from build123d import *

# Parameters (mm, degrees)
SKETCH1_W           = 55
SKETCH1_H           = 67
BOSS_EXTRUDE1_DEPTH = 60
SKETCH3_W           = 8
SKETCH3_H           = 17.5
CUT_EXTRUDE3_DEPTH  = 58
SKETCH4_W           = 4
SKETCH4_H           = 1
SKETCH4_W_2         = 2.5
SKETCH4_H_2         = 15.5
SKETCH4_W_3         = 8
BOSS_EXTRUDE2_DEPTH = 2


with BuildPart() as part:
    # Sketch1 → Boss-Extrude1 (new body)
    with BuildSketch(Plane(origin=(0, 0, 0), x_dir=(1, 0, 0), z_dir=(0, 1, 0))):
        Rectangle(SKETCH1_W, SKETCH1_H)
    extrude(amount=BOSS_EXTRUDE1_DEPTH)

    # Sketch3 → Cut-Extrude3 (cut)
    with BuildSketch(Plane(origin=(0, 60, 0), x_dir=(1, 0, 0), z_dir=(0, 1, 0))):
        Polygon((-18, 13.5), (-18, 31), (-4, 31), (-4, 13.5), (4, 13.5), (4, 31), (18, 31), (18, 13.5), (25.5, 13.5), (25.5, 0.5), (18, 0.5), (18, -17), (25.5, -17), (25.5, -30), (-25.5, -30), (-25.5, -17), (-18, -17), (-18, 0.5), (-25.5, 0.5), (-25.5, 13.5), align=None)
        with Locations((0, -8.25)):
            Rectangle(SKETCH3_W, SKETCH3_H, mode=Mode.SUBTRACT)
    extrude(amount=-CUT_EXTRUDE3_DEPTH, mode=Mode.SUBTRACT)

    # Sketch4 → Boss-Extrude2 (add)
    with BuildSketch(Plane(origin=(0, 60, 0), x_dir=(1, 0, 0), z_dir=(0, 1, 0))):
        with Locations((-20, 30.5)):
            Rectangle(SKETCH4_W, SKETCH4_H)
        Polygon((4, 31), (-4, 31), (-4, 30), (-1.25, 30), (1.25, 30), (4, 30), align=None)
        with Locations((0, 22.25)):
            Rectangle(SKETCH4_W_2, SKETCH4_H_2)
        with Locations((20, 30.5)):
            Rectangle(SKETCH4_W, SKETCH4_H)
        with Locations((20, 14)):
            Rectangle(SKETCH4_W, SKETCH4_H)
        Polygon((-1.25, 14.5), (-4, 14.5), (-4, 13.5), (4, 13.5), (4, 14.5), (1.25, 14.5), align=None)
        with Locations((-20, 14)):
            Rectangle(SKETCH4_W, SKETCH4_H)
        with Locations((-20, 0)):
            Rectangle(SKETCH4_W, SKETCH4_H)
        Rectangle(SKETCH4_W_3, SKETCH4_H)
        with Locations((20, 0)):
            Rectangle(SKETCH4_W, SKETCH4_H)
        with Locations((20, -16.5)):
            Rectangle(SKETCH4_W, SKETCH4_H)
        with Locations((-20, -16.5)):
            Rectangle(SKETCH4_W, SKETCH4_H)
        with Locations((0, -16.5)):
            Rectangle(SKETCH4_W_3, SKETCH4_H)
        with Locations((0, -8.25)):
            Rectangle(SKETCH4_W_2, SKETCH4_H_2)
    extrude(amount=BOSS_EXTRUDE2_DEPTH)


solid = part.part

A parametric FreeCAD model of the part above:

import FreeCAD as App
import Part
import Sketcher

V = App.Vector

doc = App.newDocument("Part")
body = doc.addObject("PartDesign::Body", "Body")

# Sketch on XZ plane
sketch1 = body.newObject("Sketcher::SketchObject", "Sketch")
sketch1.AttachmentSupport = (doc.getObject("XZ_Plane"), [""])
sketch1.MapMode = "FlatFace"
sketch1.addGeometry(Part.LineSegment(V(-28, -34, 0), V(-28, 34, 0)), False)
sketch1.addGeometry(Part.LineSegment(V(-28, 34, 0), V(28, 34, 0)), False)
sketch1.addGeometry(Part.LineSegment(V(28, 34, 0), V(28, -34, 0)), False)
sketch1.addGeometry(Part.LineSegment(V(28, -34, 0), V(-28, -34, 0)), False)
sketch1.addConstraint(Sketcher.Constraint("Coincident", 0, 2, 1, 1))
sketch1.addConstraint(Sketcher.Constraint("Coincident", 1, 2, 2, 1))
sketch1.addConstraint(Sketcher.Constraint("Coincident", 2, 2, 3, 1))
sketch1.addConstraint(Sketcher.Constraint("Coincident", 3, 2, 0, 1))
sketch1.addConstraint(Sketcher.Constraint("Vertical", 0))
sketch1.addConstraint(Sketcher.Constraint("Horizontal", 1))
sketch1.addConstraint(Sketcher.Constraint("Vertical", 2))
sketch1.addConstraint(Sketcher.Constraint("Horizontal", 3))
sketch1.addConstraint(Sketcher.Constraint("Symmetric", 0, 2, 2, 2, -1, 1))
sketch1.addConstraint(Sketcher.Constraint("DistanceX", 1, 1, 1, 2, 55.0))
sketch1.addConstraint(Sketcher.Constraint("DistanceY", 0, 1, 0, 2, 67.0))
pad1 = body.newObject("PartDesign::Pad", "Pad")
pad1.Profile = sketch1
pad1.Length = 60
pad1.Reversed = True

# Sketch on XZ plane
sketch2 = body.newObject("Sketcher::SketchObject", "Sketch001")
sketch2.AttachmentSupport = (doc.getObject("XZ_Plane"), [""])
sketch2.MapMode = "FlatFace"
sketch2.AttachmentOffset = App.Placement(V(0, 0, -60), App.Rotation())
sketch2.addGeometry(Part.LineSegment(V(-18, -31, 0), V(-18, -14, 0)), False)
sketch2.addGeometry(Part.LineSegment(V(-18, -14, 0), V(-26, -14, 0)), False)
sketch2.addGeometry(Part.LineSegment(V(-26, -14, 0), V(-26, 0, 0)), False)
sketch2.addGeometry(Part.LineSegment(V(-26, 0, 0), V(-18, 0, 0)), False)
sketch2.addGeometry(Part.LineSegment(V(-18, 0, 0), V(-18, 17, 0)), False)
sketch2.addGeometry(Part.LineSegment(V(-18, 17, 0), V(-26, 17, 0)), False)
sketch2.addGeometry(Part.LineSegment(V(-26, 17, 0), V(-26, 30, 0)), False)
sketch2.addGeometry(Part.LineSegment(V(-26, 30, 0), V(26, 30, 0)), False)
sketch2.addGeometry(Part.LineSegment(V(26, 30, 0), V(26, 17, 0)), False)
sketch2.addGeometry(Part.LineSegment(V(26, 17, 0), V(18, 17, 0)), False)
sketch2.addGeometry(Part.LineSegment(V(18, 17, 0), V(18, 0, 0)), False)
sketch2.addGeometry(Part.LineSegment(V(18, 0, 0), V(26, 0, 0)), False)
sketch2.addGeometry(Part.LineSegment(V(26, 0, 0), V(26, -14, 0)), False)
sketch2.addGeometry(Part.LineSegment(V(26, -14, 0), V(18, -14, 0)), False)
sketch2.addGeometry(Part.LineSegment(V(18, -14, 0), V(18, -31, 0)), False)
sketch2.addGeometry(Part.LineSegment(V(18, -31, 0), V(4, -31, 0)), False)
sketch2.addGeometry(Part.LineSegment(V(4, -31, 0), V(4, -14, 0)), False)
sketch2.addGeometry(Part.LineSegment(V(4, -14, 0), V(-4, -14, 0)), False)
sketch2.addGeometry(Part.LineSegment(V(-4, -14, 0), V(-4, -31, 0)), False)
sketch2.addGeometry(Part.LineSegment(V(-4, -31, 0), V(-18, -31, 0)), False)
sketch2.addGeometry(Part.LineSegment(V(-4, 17, 0), V(-4, 0, 0)), False)
sketch2.addGeometry(Part.LineSegment(V(-4, 0, 0), V(4, 0, 0)), False)
sketch2.addGeometry(Part.LineSegment(V(4, 0, 0), V(4, 17, 0)), False)
sketch2.addGeometry(Part.LineSegment(V(4, 17, 0), V(-4, 17, 0)), False)
sketch2.addConstraint(Sketcher.Constraint("Coincident", 0, 2, 1, 1))
sketch2.addConstraint(Sketcher.Constraint("Coincident", 1, 2, 2, 1))
sketch2.addConstraint(Sketcher.Constraint("Coincident", 2, 2, 3, 1))
sketch2.addConstraint(Sketcher.Constraint("Coincident", 3, 2, 4, 1))
sketch2.addConstraint(Sketcher.Constraint("Coincident", 4, 2, 5, 1))
sketch2.addConstraint(Sketcher.Constraint("Coincident", 5, 2, 6, 1))
sketch2.addConstraint(Sketcher.Constraint("Coincident", 6, 2, 7, 1))
sketch2.addConstraint(Sketcher.Constraint("Coincident", 7, 2, 8, 1))
sketch2.addConstraint(Sketcher.Constraint("Coincident", 8, 2, 9, 1))
sketch2.addConstraint(Sketcher.Constraint("Coincident", 9, 2, 10, 1))
sketch2.addConstraint(Sketcher.Constraint("Coincident", 10, 2, 11, 1))
sketch2.addConstraint(Sketcher.Constraint("Coincident", 11, 2, 12, 1))
sketch2.addConstraint(Sketcher.Constraint("Coincident", 12, 2, 13, 1))
sketch2.addConstraint(Sketcher.Constraint("Coincident", 13, 2, 14, 1))
sketch2.addConstraint(Sketcher.Constraint("Coincident", 14, 2, 15, 1))
sketch2.addConstraint(Sketcher.Constraint("Coincident", 15, 2, 16, 1))
sketch2.addConstraint(Sketcher.Constraint("Coincident", 16, 2, 17, 1))
sketch2.addConstraint(Sketcher.Constraint("Coincident", 17, 2, 18, 1))
sketch2.addConstraint(Sketcher.Constraint("Coincident", 18, 2, 19, 1))
sketch2.addConstraint(Sketcher.Constraint("Coincident", 19, 2, 0, 1))
sketch2.addConstraint(Sketcher.Constraint("Coincident", 20, 2, 21, 1))
sketch2.addConstraint(Sketcher.Constraint("Coincident", 21, 2, 22, 1))
sketch2.addConstraint(Sketcher.Constraint("Coincident", 22, 2, 23, 1))
sketch2.addConstraint(Sketcher.Constraint("Coincident", 23, 2, 20, 1))
sketch2.addConstraint(Sketcher.Constraint("Vertical", 0))
sketch2.addConstraint(Sketcher.Constraint("Horizontal", 1))
sketch2.addConstraint(Sketcher.Constraint("Vertical", 2))
sketch2.addConstraint(Sketcher.Constraint("Horizontal", 3))
sketch2.addConstraint(Sketcher.Constraint("Vertical", 4))
sketch2.addConstraint(Sketcher.Constraint("Horizontal", 5))
sketch2.addConstraint(Sketcher.Constraint("Vertical", 6))
sketch2.addConstraint(Sketcher.Constraint("Horizontal", 7))
sketch2.addConstraint(Sketcher.Constraint("Vertical", 8))
sketch2.addConstraint(Sketcher.Constraint("Horizontal", 9))
sketch2.addConstraint(Sketcher.Constraint("Vertical", 10))
sketch2.addConstraint(Sketcher.Constraint("Horizontal", 11))
sketch2.addConstraint(Sketcher.Constraint("Vertical", 12))
sketch2.addConstraint(Sketcher.Constraint("Horizontal", 13))
sketch2.addConstraint(Sketcher.Constraint("Vertical", 14))
sketch2.addConstraint(Sketcher.Constraint("Horizontal", 15))
sketch2.addConstraint(Sketcher.Constraint("Vertical", 16))
sketch2.addConstraint(Sketcher.Constraint("Horizontal", 17))
sketch2.addConstraint(Sketcher.Constraint("Vertical", 18))
sketch2.addConstraint(Sketcher.Constraint("Horizontal", 19))
sketch2.addConstraint(Sketcher.Constraint("Vertical", 20))
sketch2.addConstraint(Sketcher.Constraint("Horizontal", 21))
sketch2.addConstraint(Sketcher.Constraint("Vertical", 22))
sketch2.addConstraint(Sketcher.Constraint("Horizontal", 23))
sketch2.addConstraint(Sketcher.Constraint("Symmetric", 5, 2, 8, 2, -2))
sketch2.addConstraint(Sketcher.Constraint("Symmetric", 3, 2, 10, 2, -2))
sketch2.addConstraint(Sketcher.Constraint("Symmetric", 1, 2, 12, 2, -2))
sketch2.addConstraint(Sketcher.Constraint("Symmetric", 15, 2, 18, 2, -2))
sketch2.addConstraint(Sketcher.Constraint("Horizontal", 13, 2, 16, 2))
sketch2.addConstraint(Sketcher.Constraint("Horizontal", 11, 2, 20, 2))
sketch2.addConstraint(Sketcher.Constraint("Horizontal", 9, 2, 22, 2))
sketch2.addConstraint(Sketcher.Constraint("Vertical", 0, 2, 3, 2))
sketch2.addConstraint(Sketcher.Constraint("Vertical", 2, 2, 5, 2))
sketch2.addConstraint(Sketcher.Constraint("Vertical", 10, 2, 13, 2))
sketch2.addConstraint(Sketcher.Constraint("Vertical", 18, 2, 20, 2))
sketch2.addConstraint(Sketcher.Constraint("Vertical", 16, 2, 21, 2))
sketch2.addConstraint(Sketcher.Constraint("Equal", 0, 4))
sketch2.addConstraint(Sketcher.Constraint("Equal", 2, 6))
sketch2.addConstraint(Sketcher.Constraint("DistanceX", 7, 1, 7, 2, 51.0))
sketch2.addConstraint(Sketcher.Constraint("DistanceX", 15, 2, 15, 1, 14.0))
sketch2.addConstraint(Sketcher.Constraint("DistanceX", 17, 2, 17, 1, 8.0))
sketch2.addConstraint(Sketcher.Constraint("DistanceY", 2, 1, 2, 2, 13.0))
sketch2.addConstraint(Sketcher.Constraint("DistanceY", 0, 1, 0, 2, 17.5))
sketch2.addConstraint(Sketcher.Constraint("DistanceY", -1, 1, 4, 2, 17.0))
pocket1 = body.newObject("PartDesign::Pocket", "Pocket")
pocket1.Profile = sketch2
pocket1.Length = 58
pocket1.Reversed = True

# Sketch on XZ plane
sketch3 = body.newObject("Sketcher::SketchObject", "Sketch002")
sketch3.AttachmentSupport = (doc.getObject("XZ_Plane"), [""])
sketch3.MapMode = "FlatFace"
sketch3.AttachmentOffset = App.Placement(V(0, 0, -60), App.Rotation())
sketch3.addGeometry(Part.LineSegment(V(-22, -31, 0), V(-22, -30, 0)), False)
sketch3.addGeometry(Part.LineSegment(V(-22, -30, 0), V(-18, -30, 0)), False)
sketch3.addGeometry(Part.LineSegment(V(-18, -30, 0), V(-18, -31, 0)), False)
sketch3.addGeometry(Part.LineSegment(V(-18, -31, 0), V(-22, -31, 0)), False)
sketch3.addGeometry(Part.LineSegment(V(4, -31, 0), V(-4, -31, 0)), False)
sketch3.addGeometry(Part.LineSegment(V(-4, -31, 0), V(-4, -30, 0)), False)
sketch3.addGeometry(Part.LineSegment(V(-4, -30, 0), V(-1.2, -30, 0)), False)
sketch3.addGeometry(Part.LineSegment(V(-1.2, -30, 0), V(-1.2, -14.5, 0)), False)
sketch3.addGeometry(Part.LineSegment(V(-1.2, -14.5, 0), V(-4, -14.5, 0)), False)
sketch3.addGeometry(Part.LineSegment(V(-4, -14.5, 0), V(-4, -13.5, 0)), False)
sketch3.addGeometry(Part.LineSegment(V(-4, -13.5, 0), V(4, -13.5, 0)), False)
sketch3.addGeometry(Part.LineSegment(V(4, -13.5, 0), V(4, -14.5, 0)), False)
sketch3.addGeometry(Part.LineSegment(V(4, -14.5, 0), V(1.2, -14.5, 0)), False)
sketch3.addGeometry(Part.LineSegment(V(1.2, -14.5, 0), V(1.2, -30, 0)), False)
sketch3.addGeometry(Part.LineSegment(V(1.2, -30, 0), V(4, -30, 0)), False)
sketch3.addGeometry(Part.LineSegment(V(4, -30, 0), V(4, -31, 0)), False)
sketch3.addGeometry(Part.LineSegment(V(18, -31, 0), V(18, -30, 0)), False)
sketch3.addGeometry(Part.LineSegment(V(18, -30, 0), V(22, -30, 0)), False)
sketch3.addGeometry(Part.LineSegment(V(22, -30, 0), V(22, -31, 0)), False)
sketch3.addGeometry(Part.LineSegment(V(22, -31, 0), V(18, -31, 0)), False)
sketch3.addGeometry(Part.LineSegment(V(18, -14.5, 0), V(18, -13.5, 0)), False)
sketch3.addGeometry(Part.LineSegment(V(18, -13.5, 0), V(22, -13.5, 0)), False)
sketch3.addGeometry(Part.LineSegment(V(22, -13.5, 0), V(22, -14.5, 0)), False)
sketch3.addGeometry(Part.LineSegment(V(22, -14.5, 0), V(18, -14.5, 0)), False)
sketch3.addGeometry(Part.LineSegment(V(-22, -14.5, 0), V(-22, -13.5, 0)), False)
sketch3.addGeometry(Part.LineSegment(V(-22, -13.5, 0), V(-18, -13.5, 0)), False)
sketch3.addGeometry(Part.LineSegment(V(-18, -13.5, 0), V(-18, -14.5, 0)), False)
sketch3.addGeometry(Part.LineSegment(V(-18, -14.5, 0), V(-22, -14.5, 0)), False)
sketch3.addGeometry(Part.LineSegment(V(-22, -0.5, 0), V(-22, 0.5, 0)), False)
sketch3.addGeometry(Part.LineSegment(V(-22, 0.5, 0), V(-18, 0.5, 0)), False)
sketch3.addGeometry(Part.LineSegment(V(-18, 0.5, 0), V(-18, -0.5, 0)), False)
sketch3.addGeometry(Part.LineSegment(V(-18, -0.5, 0), V(-22, -0.5, 0)), False)
sketch3.addGeometry(Part.LineSegment(V(-4, -0.5, 0), V(-4, 0.5, 0)), False)
sketch3.addGeometry(Part.LineSegment(V(-4, 0.5, 0), V(-1.2, 0.5, 0)), False)
sketch3.addGeometry(Part.LineSegment(V(-1.2, 0.5, 0), V(-1.2, 16, 0)), False)
sketch3.addGeometry(Part.LineSegment(V(-1.2, 16, 0), V(-4, 16, 0)), False)
sketch3.addGeometry(Part.LineSegment(V(-4, 16, 0), V(-4, 17, 0)), False)
sketch3.addGeometry(Part.LineSegment(V(-4, 17, 0), V(4, 17, 0)), False)
sketch3.addGeometry(Part.LineSegment(V(4, 17, 0), V(4, 16, 0)), False)
sketch3.addGeometry(Part.LineSegment(V(4, 16, 0), V(1.2, 16, 0)), False)
sketch3.addGeometry(Part.LineSegment(V(1.2, 16, 0), V(1.2, 0.5, 0)), False)
sketch3.addGeometry(Part.LineSegment(V(1.2, 0.5, 0), V(4, 0.5, 0)), False)
sketch3.addGeometry(Part.LineSegment(V(4, 0.5, 0), V(4, -0.5, 0)), False)
sketch3.addGeometry(Part.LineSegment(V(4, -0.5, 0), V(-4, -0.5, 0)), False)
sketch3.addGeometry(Part.LineSegment(V(18, -0.5, 0), V(18, 0.5, 0)), False)
sketch3.addGeometry(Part.LineSegment(V(18, 0.5, 0), V(22, 0.5, 0)), False)
sketch3.addGeometry(Part.LineSegment(V(22, 0.5, 0), V(22, -0.5, 0)), False)
sketch3.addGeometry(Part.LineSegment(V(22, -0.5, 0), V(18, -0.5, 0)), False)
sketch3.addGeometry(Part.LineSegment(V(18, 16, 0), V(18, 17, 0)), False)
sketch3.addGeometry(Part.LineSegment(V(18, 17, 0), V(22, 17, 0)), False)
sketch3.addGeometry(Part.LineSegment(V(22, 17, 0), V(22, 16, 0)), False)
sketch3.addGeometry(Part.LineSegment(V(22, 16, 0), V(18, 16, 0)), False)
sketch3.addGeometry(Part.LineSegment(V(-22, 16, 0), V(-22, 17, 0)), False)
sketch3.addGeometry(Part.LineSegment(V(-22, 17, 0), V(-18, 17, 0)), False)
sketch3.addGeometry(Part.LineSegment(V(-18, 17, 0), V(-18, 16, 0)), False)
sketch3.addGeometry(Part.LineSegment(V(-18, 16, 0), V(-22, 16, 0)), False)
sketch3.addConstraint(Sketcher.Constraint("Coincident", 0, 2, 1, 1))
sketch3.addConstraint(Sketcher.Constraint("Coincident", 1, 2, 2, 1))
sketch3.addConstraint(Sketcher.Constraint("Coincident", 2, 2, 3, 1))
sketch3.addConstraint(Sketcher.Constraint("Coincident", 3, 2, 0, 1))
sketch3.addConstraint(Sketcher.Constraint("Coincident", 4, 2, 5, 1))
sketch3.addConstraint(Sketcher.Constraint("Coincident", 5, 2, 6, 1))
sketch3.addConstraint(Sketcher.Constraint("Coincident", 6, 2, 7, 1))
sketch3.addConstraint(Sketcher.Constraint("Coincident", 7, 2, 8, 1))
sketch3.addConstraint(Sketcher.Constraint("Coincident", 8, 2, 9, 1))
sketch3.addConstraint(Sketcher.Constraint("Coincident", 9, 2, 10, 1))
sketch3.addConstraint(Sketcher.Constraint("Coincident", 10, 2, 11, 1))
sketch3.addConstraint(Sketcher.Constraint("Coincident", 11, 2, 12, 1))
sketch3.addConstraint(Sketcher.Constraint("Coincident", 12, 2, 13, 1))
sketch3.addConstraint(Sketcher.Constraint("Coincident", 13, 2, 14, 1))
sketch3.addConstraint(Sketcher.Constraint("Coincident", 14, 2, 15, 1))
sketch3.addConstraint(Sketcher.Constraint("Coincident", 15, 2, 4, 1))
sketch3.addConstraint(Sketcher.Constraint("Coincident", 16, 2, 17, 1))
sketch3.addConstraint(Sketcher.Constraint("Coincident", 17, 2, 18, 1))
sketch3.addConstraint(Sketcher.Constraint("Coincident", 18, 2, 19, 1))
sketch3.addConstraint(Sketcher.Constraint("Coincident", 19, 2, 16, 1))
sketch3.addConstraint(Sketcher.Constraint("Coincident", 20, 2, 21, 1))
sketch3.addConstraint(Sketcher.Constraint("Coincident", 21, 2, 22, 1))
sketch3.addConstraint(Sketcher.Constraint("Coincident", 22, 2, 23, 1))
sketch3.addConstraint(Sketcher.Constraint("Coincident", 23, 2, 20, 1))
sketch3.addConstraint(Sketcher.Constraint("Coincident", 24, 2, 25, 1))
sketch3.addConstraint(Sketcher.Constraint("Coincident", 25, 2, 26, 1))
sketch3.addConstraint(Sketcher.Constraint("Coincident", 26, 2, 27, 1))
sketch3.addConstraint(Sketcher.Constraint("Coincident", 27, 2, 24, 1))
sketch3.addConstraint(Sketcher.Constraint("Coincident", 28, 2, 29, 1))
sketch3.addConstraint(Sketcher.Constraint("Coincident", 29, 2, 30, 1))
sketch3.addConstraint(Sketcher.Constraint("Coincident", 30, 2, 31, 1))
sketch3.addConstraint(Sketcher.Constraint("Coincident", 31, 2, 28, 1))
sketch3.addConstraint(Sketcher.Constraint("Coincident", 32, 2, 33, 1))
sketch3.addConstraint(Sketcher.Constraint("Coincident", 33, 2, 34, 1))
sketch3.addConstraint(Sketcher.Constraint("Coincident", 34, 2, 35, 1))
sketch3.addConstraint(Sketcher.Constraint("Coincident", 35, 2, 36, 1))
sketch3.addConstraint(Sketcher.Constraint("Coincident", 36, 2, 37, 1))
sketch3.addConstraint(Sketcher.Constraint("Coincident", 37, 2, 38, 1))
sketch3.addConstraint(Sketcher.Constraint("Coincident", 38, 2, 39, 1))
sketch3.addConstraint(Sketcher.Constraint("Coincident", 39, 2, 40, 1))
sketch3.addConstraint(Sketcher.Constraint("Coincident", 40, 2, 41, 1))
sketch3.addConstraint(Sketcher.Constraint("Coincident", 41, 2, 42, 1))
sketch3.addConstraint(Sketcher.Constraint("Coincident", 42, 2, 43, 1))
sketch3.addConstraint(Sketcher.Constraint("Coincident", 43, 2, 32, 1))
sketch3.addConstraint(Sketcher.Constraint("Coincident", 44, 2, 45, 1))
sketch3.addConstraint(Sketcher.Constraint("Coincident", 45, 2, 46, 1))
sketch3.addConstraint(Sketcher.Constraint("Coincident", 46, 2, 47, 1))
sketch3.addConstraint(Sketcher.Constraint("Coincident", 47, 2, 44, 1))
sketch3.addConstraint(Sketcher.Constraint("Coincident", 48, 2, 49, 1))
sketch3.addConstraint(Sketcher.Constraint("Coincident", 49, 2, 50, 1))
sketch3.addConstraint(Sketcher.Constraint("Coincident", 50, 2, 51, 1))
sketch3.addConstraint(Sketcher.Constraint("Coincident", 51, 2, 48, 1))
sketch3.addConstraint(Sketcher.Constraint("Coincident", 52, 2, 53, 1))
sketch3.addConstraint(Sketcher.Constraint("Coincident", 53, 2, 54, 1))
sketch3.addConstraint(Sketcher.Constraint("Coincident", 54, 2, 55, 1))
sketch3.addConstraint(Sketcher.Constraint("Coincident", 55, 2, 52, 1))
sketch3.addConstraint(Sketcher.Constraint("Vertical", 0))
sketch3.addConstraint(Sketcher.Constraint("Horizontal", 1))
sketch3.addConstraint(Sketcher.Constraint("Vertical", 2))
sketch3.addConstraint(Sketcher.Constraint("Horizontal", 3))
sketch3.addConstraint(Sketcher.Constraint("Horizontal", 4))
sketch3.addConstraint(Sketcher.Constraint("Vertical", 5))
sketch3.addConstraint(Sketcher.Constraint("Horizontal", 6))
sketch3.addConstraint(Sketcher.Constraint("Vertical", 7))
sketch3.addConstraint(Sketcher.Constraint("Horizontal", 8))
sketch3.addConstraint(Sketcher.Constraint("Vertical", 9))
sketch3.addConstraint(Sketcher.Constraint("Horizontal", 10))
sketch3.addConstraint(Sketcher.Constraint("Vertical", 11))
sketch3.addConstraint(Sketcher.Constraint("Horizontal", 12))
sketch3.addConstraint(Sketcher.Constraint("Vertical", 13))
sketch3.addConstraint(Sketcher.Constraint("Horizontal", 14))
sketch3.addConstraint(Sketcher.Constraint("Vertical", 15))
sketch3.addConstraint(Sketcher.Constraint("Vertical", 16))
sketch3.addConstraint(Sketcher.Constraint("Horizontal", 17))
sketch3.addConstraint(Sketcher.Constraint("Vertical", 18))
sketch3.addConstraint(Sketcher.Constraint("Horizontal", 19))
sketch3.addConstraint(Sketcher.Constraint("Vertical", 20))
sketch3.addConstraint(Sketcher.Constraint("Horizontal", 21))
sketch3.addConstraint(Sketcher.Constraint("Vertical", 22))
sketch3.addConstraint(Sketcher.Constraint("Horizontal", 23))
sketch3.addConstraint(Sketcher.Constraint("Vertical", 24))
sketch3.addConstraint(Sketcher.Constraint("Horizontal", 25))
sketch3.addConstraint(Sketcher.Constraint("Vertical", 26))
sketch3.addConstraint(Sketcher.Constraint("Horizontal", 27))
sketch3.addConstraint(Sketcher.Constraint("Vertical", 28))
sketch3.addConstraint(Sketcher.Constraint("Horizontal", 29))
sketch3.addConstraint(Sketcher.Constraint("Vertical", 30))
sketch3.addConstraint(Sketcher.Constraint("Horizontal", 31))
sketch3.addConstraint(Sketcher.Constraint("Vertical", 32))
sketch3.addConstraint(Sketcher.Constraint("Horizontal", 33))
sketch3.addConstraint(Sketcher.Constraint("Vertical", 34))
sketch3.addConstraint(Sketcher.Constraint("Horizontal", 35))
sketch3.addConstraint(Sketcher.Constraint("Vertical", 36))
sketch3.addConstraint(Sketcher.Constraint("Horizontal", 37))
sketch3.addConstraint(Sketcher.Constraint("Vertical", 38))
sketch3.addConstraint(Sketcher.Constraint("Horizontal", 39))
sketch3.addConstraint(Sketcher.Constraint("Vertical", 40))
sketch3.addConstraint(Sketcher.Constraint("Horizontal", 41))
sketch3.addConstraint(Sketcher.Constraint("Vertical", 42))
sketch3.addConstraint(Sketcher.Constraint("Horizontal", 43))
sketch3.addConstraint(Sketcher.Constraint("Vertical", 44))
sketch3.addConstraint(Sketcher.Constraint("Horizontal", 45))
sketch3.addConstraint(Sketcher.Constraint("Vertical", 46))
sketch3.addConstraint(Sketcher.Constraint("Horizontal", 47))
sketch3.addConstraint(Sketcher.Constraint("Vertical", 48))
sketch3.addConstraint(Sketcher.Constraint("Horizontal", 49))
sketch3.addConstraint(Sketcher.Constraint("Vertical", 50))
sketch3.addConstraint(Sketcher.Constraint("Horizontal", 51))
sketch3.addConstraint(Sketcher.Constraint("Vertical", 52))
sketch3.addConstraint(Sketcher.Constraint("Horizontal", 53))
sketch3.addConstraint(Sketcher.Constraint("Vertical", 54))
sketch3.addConstraint(Sketcher.Constraint("Horizontal", 55))
sketch3.addConstraint(Sketcher.Constraint("Symmetric", 32, 2, 42, 2, -1, 1))
sketch3.addConstraint(Sketcher.Constraint("Symmetric", 30, 2, 44, 2, -1, 1))
sketch3.addConstraint(Sketcher.Constraint("Symmetric", 28, 2, 46, 2, -1, 1))
sketch3.addConstraint(Sketcher.Constraint("Symmetric", 8, 2, 11, 2, -2))
sketch3.addConstraint(Sketcher.Constraint("Symmetric", 6, 2, 13, 2, -2))
sketch3.addConstraint(Sketcher.Constraint("Symmetric", 1, 2, 16, 2, -2))
sketch3.addConstraint(Sketcher.Constraint("Symmetric", 3, 2, 18, 2, -2))
sketch3.addConstraint(Sketcher.Constraint("Symmetric", 21, 2, 24, 2, -2))
sketch3.addConstraint(Sketcher.Constraint("Symmetric", 23, 2, 26, 2, -2))
sketch3.addConstraint(Sketcher.Constraint("Symmetric", 35, 2, 38, 2, -2))
sketch3.addConstraint(Sketcher.Constraint("Symmetric", 33, 2, 40, 2, -2))
sketch3.addConstraint(Sketcher.Constraint("Symmetric", 49, 2, 52, 2, -2))
sketch3.addConstraint(Sketcher.Constraint("Symmetric", 51, 2, 54, 2, -2))
sketch3.addConstraint(Sketcher.Constraint("Horizontal", 3, 2, 4, 2))
sketch3.addConstraint(Sketcher.Constraint("Horizontal", 1, 2, 5, 2))
sketch3.addConstraint(Sketcher.Constraint("Horizontal", 10, 2, 20, 2))
sketch3.addConstraint(Sketcher.Constraint("Horizontal", 12, 2, 22, 2))
sketch3.addConstraint(Sketcher.Constraint("Horizontal", 29, 2, 32, 2))
sketch3.addConstraint(Sketcher.Constraint("Horizontal", 31, 2, 42, 2))
sketch3.addConstraint(Sketcher.Constraint("Horizontal", 37, 2, 48, 2))
sketch3.addConstraint(Sketcher.Constraint("Horizontal", 39, 2, 50, 2))
sketch3.addConstraint(Sketcher.Constraint("Vertical", 5, 2, 8, 2))
sketch3.addConstraint(Sketcher.Constraint("Vertical", 11, 2, 14, 2))
sketch3.addConstraint(Sketcher.Constraint("Vertical", 19, 2, 20, 2))
sketch3.addConstraint(Sketcher.Constraint("Vertical", 18, 2, 21, 2))
sketch3.addConstraint(Sketcher.Constraint("Vertical", 27, 2, 28, 2))
sketch3.addConstraint(Sketcher.Constraint("Vertical", 26, 2, 29, 2))
sketch3.addConstraint(Sketcher.Constraint("Vertical", 9, 2, 32, 2))
sketch3.addConstraint(Sketcher.Constraint("Vertical", 7, 2, 33, 2))
sketch3.addConstraint(Sketcher.Constraint("Vertical", 32, 2, 35, 2))
sketch3.addConstraint(Sketcher.Constraint("Vertical", 47, 2, 48, 2))
sketch3.addConstraint(Sketcher.Constraint("Vertical", 46, 2, 49, 2))
sketch3.addConstraint(Sketcher.Constraint("Equal", 5, 9))
sketch3.addConstraint(Sketcher.Constraint("Equal", 26, 28))
sketch3.addConstraint(Sketcher.Constraint("Equal", 13, 34))
sketch3.addConstraint(Sketcher.Constraint("Equal", 32, 36))
sketch3.addConstraint(Sketcher.Constraint("DistanceX", 1, 1, 1, 2, 4.0))
sketch3.addConstraint(Sketcher.Constraint("DistanceX", 4, 2, 4, 1, 8.0))
sketch3.addConstraint(Sketcher.Constraint("DistanceY", 0, 1, 0, 2, 1.0))
sketch3.addConstraint(Sketcher.Constraint("DistanceY", 7, 1, 7, 2, 15.5))
sketch3.addConstraint(Sketcher.Constraint("DistanceX", 0, 2, -1, 1, 22.0))
sketch3.addConstraint(Sketcher.Constraint("DistanceY", 0, 2, -1, 1, 30.0))
sketch3.addConstraint(Sketcher.Constraint("DistanceX", 6, 1, 6, 2, 2.75))
pad2 = body.newObject("PartDesign::Pad", "Pad001")
pad2.Profile = sketch3
pad2.Length = 2
pad2.Reversed = True

doc.recompute()
